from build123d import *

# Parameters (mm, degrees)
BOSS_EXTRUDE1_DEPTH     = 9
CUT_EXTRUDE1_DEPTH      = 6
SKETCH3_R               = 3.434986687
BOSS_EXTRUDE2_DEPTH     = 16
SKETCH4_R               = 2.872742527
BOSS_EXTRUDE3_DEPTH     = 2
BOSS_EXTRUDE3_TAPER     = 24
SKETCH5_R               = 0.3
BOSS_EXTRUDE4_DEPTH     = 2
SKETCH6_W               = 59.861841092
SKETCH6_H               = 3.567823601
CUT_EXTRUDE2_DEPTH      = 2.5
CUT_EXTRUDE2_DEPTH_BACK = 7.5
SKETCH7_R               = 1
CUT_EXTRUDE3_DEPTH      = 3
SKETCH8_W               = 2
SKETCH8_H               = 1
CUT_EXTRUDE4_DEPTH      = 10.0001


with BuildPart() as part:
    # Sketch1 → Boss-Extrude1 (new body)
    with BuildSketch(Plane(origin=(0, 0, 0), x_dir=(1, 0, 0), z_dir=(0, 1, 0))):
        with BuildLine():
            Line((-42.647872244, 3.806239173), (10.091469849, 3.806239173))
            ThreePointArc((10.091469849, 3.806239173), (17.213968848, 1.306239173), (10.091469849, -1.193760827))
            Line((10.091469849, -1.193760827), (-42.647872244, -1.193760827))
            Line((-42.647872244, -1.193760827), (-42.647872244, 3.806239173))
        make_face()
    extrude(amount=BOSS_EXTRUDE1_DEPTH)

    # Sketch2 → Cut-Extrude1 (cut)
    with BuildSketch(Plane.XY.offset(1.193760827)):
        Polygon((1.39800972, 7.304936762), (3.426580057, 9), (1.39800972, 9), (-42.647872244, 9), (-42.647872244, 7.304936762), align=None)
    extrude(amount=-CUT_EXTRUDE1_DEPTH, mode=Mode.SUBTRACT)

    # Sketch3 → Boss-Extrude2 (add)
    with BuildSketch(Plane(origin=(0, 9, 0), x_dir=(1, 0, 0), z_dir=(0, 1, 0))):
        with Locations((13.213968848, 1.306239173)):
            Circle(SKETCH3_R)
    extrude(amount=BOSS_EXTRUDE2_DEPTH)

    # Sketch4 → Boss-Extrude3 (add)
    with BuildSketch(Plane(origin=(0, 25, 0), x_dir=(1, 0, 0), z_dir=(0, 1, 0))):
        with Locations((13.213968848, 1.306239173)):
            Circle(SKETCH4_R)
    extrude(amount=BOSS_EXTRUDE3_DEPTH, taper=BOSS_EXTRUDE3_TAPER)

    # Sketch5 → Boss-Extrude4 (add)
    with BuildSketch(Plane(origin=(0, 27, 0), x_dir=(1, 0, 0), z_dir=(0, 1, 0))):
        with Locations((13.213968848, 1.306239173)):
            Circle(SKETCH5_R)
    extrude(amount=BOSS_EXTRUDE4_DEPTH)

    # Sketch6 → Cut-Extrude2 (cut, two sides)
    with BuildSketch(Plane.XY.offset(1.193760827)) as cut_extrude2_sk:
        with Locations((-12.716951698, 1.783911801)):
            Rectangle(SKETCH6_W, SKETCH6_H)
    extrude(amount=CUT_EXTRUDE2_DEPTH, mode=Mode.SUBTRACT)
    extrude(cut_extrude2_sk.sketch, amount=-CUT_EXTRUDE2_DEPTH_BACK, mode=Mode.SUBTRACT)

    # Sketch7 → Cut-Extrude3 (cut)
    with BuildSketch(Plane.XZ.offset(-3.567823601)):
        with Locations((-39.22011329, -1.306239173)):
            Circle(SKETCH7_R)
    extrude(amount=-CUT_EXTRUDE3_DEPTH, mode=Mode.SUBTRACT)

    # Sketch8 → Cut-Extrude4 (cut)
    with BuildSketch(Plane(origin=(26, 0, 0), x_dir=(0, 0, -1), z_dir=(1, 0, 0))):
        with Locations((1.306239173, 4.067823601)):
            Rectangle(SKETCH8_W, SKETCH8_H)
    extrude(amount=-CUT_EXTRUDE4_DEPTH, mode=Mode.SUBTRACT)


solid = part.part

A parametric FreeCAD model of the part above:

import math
import FreeCAD as App
import Part
import Sketcher

V = App.Vector


def add_polygon(sketch, points):
    """Adds a closed chain of lines whose ends are joined by coincident constraints."""
    first, n = sketch.GeometryCount, len(points)
    for a, b in zip(points, points[1:] + points[:1]):
        sketch.addGeometry(Part.LineSegment(App.Vector(*a, 0), App.Vector(*b, 0)), False)
    for i in range(n):
        sketch.addConstraint(Sketcher.Constraint("Coincident", first + i, 2, first + (i + 1) % n, 1))

doc = App.newDocument("Part")
params = doc.addObject("Spreadsheet::Sheet", "Params")
for row, (alias, value) in enumerate([
    ("sketch1_radius", "4 mm"),
    ("sketch1_height", "5 mm"),
    ("pad1_length", "9 mm"),
    ("pocket1_length", "6 mm"),
    ("pad2_length", "16 mm"),
    ("pad3_length", "2 mm"),
    ("pad3_taper", "-24 deg"),
    ("sketch5_diameter", "0.6 mm"),
    ("pad4_length", "2 mm"),
    ("sketch7_diameter", "2 mm"),
    ("pocket3_length", "3 mm"),
    ("sketch8_width", "1 mm"),
    ("sketch8_height", "2 mm"),
    ("pocket4_length", "10.0001 mm"),
], start=1):
    params.set(f"A{row}", alias)
    params.set(f"B{row}", "=" + value)
    params.setAlias(f"B{row}", alias)

body = doc.addObject("PartDesign::Body", "Body")

# Sketch on XZ plane
sketch1 = body.newObject("Sketcher::SketchObject", "Sketch")
sketch1.AttachmentSupport = (doc.getObject("XZ_Plane"), [""])
sketch1.MapMode = "FlatFace"
sketch1.addGeometry([
    Part.LineSegment(V(10.1, -3.8, 0), V(-42.6, -3.8, 0)),
    Part.LineSegment(V(-42.6, -3.8, 0), V(-42.6, 1.2, 0)),
    Part.LineSegment(V(-42.6, 1.2, 0), V(10.1, 1.2, 0)),
    Part.ArcOfCircle(Part.Circle(V(13.2, -1.3, 0), V(0, 0, 1), 4), math.radians(-141), math.radians(141)),
], False)
sketch1.addConstraint([
    Sketcher.Constraint("Coincident", 0, 2, 1, 1),
    Sketcher.Constraint("Coincident", 1, 2, 2, 1),
    Sketcher.Constraint("Coincident", 2, 2, 3, 2),
    Sketcher.Constraint("Coincident", 3, 1, 0, 1),
    Sketcher.Constraint("Horizontal", 0),
    Sketcher.Constraint("Vertical", 1),
    Sketcher.Constraint("Horizontal", 2),
    Sketcher.Constraint("Vertical", 2, 2, 3, 1),
    Sketcher.Constraint("Radius", 3, 4.0),
    Sketcher.Constraint("DistanceY", 1, 1, 1, 2, 5.0),
    Sketcher.Constraint("DistanceX", 0, 2, 0, 1, 52.739342),
    Sketcher.Constraint("DistanceX", -1, 1, 3, 3, 13.213969),
    Sketcher.Constraint("DistanceY", 3, 3, -1, 1, 1.306239),
])
sketch1.setExpression("Constraints[8]", "Params.sketch1_radius")
sketch1.setExpression("Constraints[9]", "Params.sketch1_height")
pad1 = body.newObject("PartDesign::Pad", "Pad")
pad1.Profile = sketch1
pad1.setExpression("Length", "Params.pad1_length")
pad1.Reversed = True

# Sketch on XY plane
sketch2 = body.newObject("Sketcher::SketchObject", "Sketch001")
sketch2.AttachmentSupport = (doc.getObject("XY_Plane"), [""])
sketch2.MapMode = "FlatFace"
sketch2.AttachmentOffset = App.Placement(V(0, 0, 1.193761), App.Rotation())
add_polygon(sketch2, [(1.4, 7.3), (3.4, 9), (-42.6, 9), (-42.6, 7.3)])  # lines 0-3
sketch2.addConstraint([
    Sketcher.Constraint("Horizontal", 1),
    Sketcher.Constraint("Vertical", 2),
    Sketcher.Constraint("Horizontal", 3),
    Sketcher.Constraint("DistanceY", -1, 1, 0, 2, 9.0),
    Sketcher.Constraint("DistanceX", 3, 1, 3, 2, 44.045882),
    Sketcher.Constraint("DistanceX", 1, 2, 1, 1, 46.074452),
    Sketcher.Constraint("DistanceY", 2, 2, 2, 1, 1.695063),
    Sketcher.Constraint("DistanceX", -1, 1, 0, 2, 3.42658),
])
pocket1 = body.newObject("PartDesign::Pocket", "Pocket")
pocket1.Profile = sketch2
pocket1.setExpression("Length", "Params.pocket1_length")

# Sketch on XZ plane
sketch3 = body.newObject("Sketcher::SketchObject", "Sketch002")
sketch3.AttachmentSupport = (doc.getObject("XZ_Plane"), [""])
sketch3.MapMode = "FlatFace"
sketch3.AttachmentOffset = App.Placement(V(0, 0, -9), App.Rotation())
sketch3.addGeometry(Part.Circle(V(13.2, -1.3, 0), V(0, 0, 1), 3.4), False)
sketch3.addConstraint([
    Sketcher.Constraint("Diameter", 0, 6.869973),
    Sketcher.Constraint("DistanceX", -1, 1, 0, 3, 13.213969),
    Sketcher.Constraint("DistanceY", 0, 3, -1, 1, 1.306239),
])
pad2 = body.newObject("PartDesign::Pad", "Pad001")
pad2.Profile = sketch3
pad2.setExpression("Length", "Params.pad2_length")
pad2.Reversed = True

# Sketch on XZ plane
sketch4 = body.newObject("Sketcher::SketchObject", "Sketch003")
sketch4.AttachmentSupport = (doc.getObject("XZ_Plane"), [""])
sketch4.MapMode = "FlatFace"
sketch4.AttachmentOffset = App.Placement(V(0, 0, -25), App.Rotation())
sketch4.addGeometry(Part.Circle(V(13.2, -1.3, 0), V(0, 0, 1), 2.9), False)
sketch4.addConstraint([
    Sketcher.Constraint("Diameter", 0, 5.745485),
    Sketcher.Constraint("DistanceX", -1, 1, 0, 3, 13.213969),
    Sketcher.Constraint("DistanceY", 0, 3, -1, 1, 1.306239),
])
pad3 = body.newObject("PartDesign::Pad", "Pad002")
pad3.Profile = sketch4
pad3.setExpression("Length", "Params.pad3_length")
pad3.Reversed = True
pad3.setExpression("TaperAngle", "Params.pad3_taper")

# Sketch on XZ plane
sketch5 = body.newObject("Sketcher::SketchObject", "Sketch004")
sketch5.AttachmentSupport = (doc.getObject("XZ_Plane"), [""])
sketch5.MapMode = "FlatFace"
sketch5.AttachmentOffset = App.Placement(V(0, 0, -27), App.Rotation())
sketch5.addGeometry(Part.Circle(V(13.21, -1.31, 0), V(0, 0, 1), 0.3), False)
sketch5.addConstraint([
    Sketcher.Constraint("Diameter", 0, 0.6),
    Sketcher.Constraint("DistanceX", -1, 1, 0, 3, 13.213969),
    Sketcher.Constraint("DistanceY", 0, 3, -1, 1, 1.306239),
])
sketch5.setExpression("Constraints[0]", "Params.sketch5_diameter")
pad4 = body.newObject("PartDesign::Pad", "Pad003")
pad4.Profile = sketch5
pad4.setExpression("Length", "Params.pad4_length")
pad4.Reversed = True

# Sketch on XY plane
sketch6 = body.newObject("Sketcher::SketchObject", "Sketch005")
sketch6.AttachmentSupport = (doc.getObject("XY_Plane"), [""])
sketch6.MapMode = "FlatFace"
sketch6.AttachmentOffset = App.Placement(V(0, 0, 1.193761), App.Rotation())
add_polygon(sketch6, [(-42.6, 3.6), (-42.6, 0), (17.2, 0), (17.2, 3.6)])  # lines 0-3
sketch6.addConstraint([
    Sketcher.Constraint("Vertical", 0),
    Sketcher.Constraint("Horizontal", 1),
    Sketcher.Constraint("Vertical", 2),
    Sketcher.Constraint("Horizontal", 3),
    Sketcher.Constraint("PointOnObject", 0, 2, -1),
    Sketcher.Constraint("DistanceX", 1, 1, 1, 2, 59.861841),
    Sketcher.Constraint("DistanceY", 0, 2, 0, 1, 3.567824),
    Sketcher.Constraint("DistanceX", -1, 1, 1, 2, 17.213969),
])
pocket2 = body.newObject("PartDesign::Pocket", "Pocket001")
pocket2.Profile = sketch6
pocket2.Type = "ThroughAll"
pocket2.Midplane = True

# Sketch on XZ plane
sketch7 = body.newObject("Sketcher::SketchObject", "Sketch006")
sketch7.AttachmentSupport = (doc.getObject("XZ_Plane"), [""])
sketch7.MapMode = "FlatFace"
sketch7.AttachmentOffset = App.Placement(V(0, 0, -3.567824), App.Rotation())
sketch7.addGeometry(Part.Circle(V(-39.2, -1.3, 0), V(0, 0, 1), 1), False)
sketch7.addConstraint([
    Sketcher.Constraint("Diameter", 0, 2.0),
    Sketcher.Constraint("DistanceY", 0, 3, -1, 1, 1.306239),
    Sketcher.Constraint("DistanceX", 0, 3, -1, 1, 39.220113),
])
sketch7.setExpression("Constraints[0]", "Params.sketch7_diameter")
pocket3 = body.newObject("PartDesign::Pocket", "Pocket002")
pocket3.Profile = sketch7
pocket3.setExpression("Length", "Params.pocket3_length")

# Sketch on YZ plane
sketch8 = body.newObject("Sketcher::SketchObject", "Sketch007")
sketch8.AttachmentSupport = (doc.getObject("YZ_Plane"), [""])
sketch8.MapMode = "FlatFace"
sketch8.AttachmentOffset = App.Placement(V(0, 0, 26), App.Rotation())
add_polygon(sketch8, [(4.6, -0.3), (3.6, -0.3), (3.6, -2.3), (4.6, -2.3)])  # lines 0-3
sketch8.addConstraint([
    Sketcher.Constraint("Horizontal", 0),
    Sketcher.Constraint("Vertical", 1),
    Sketcher.Constraint("Horizontal", 2),
    Sketcher.Constraint("Vertical", 3),
    Sketcher.Constraint("DistanceX", 0, 2, 0, 1, 1.0),
    Sketcher.Constraint("DistanceY", 1, 2, 1, 1, 2.0),
    Sketcher.Constraint("DistanceY", 0, 2, -1, 1, 0.306239),
    Sketcher.Constraint("DistanceX", -1, 1, 0, 2, 3.567824),
])
sketch8.setExpression("Constraints[8]", "Params.sketch8_width")
sketch8.setExpression("Constraints[9]", "Params.sketch8_height")
pocket4 = body.newObject("PartDesign::Pocket", "Pocket003")
pocket4.Profile = sketch8
pocket4.setExpression("Length", "Params.pocket4_length")

doc.recompute()
